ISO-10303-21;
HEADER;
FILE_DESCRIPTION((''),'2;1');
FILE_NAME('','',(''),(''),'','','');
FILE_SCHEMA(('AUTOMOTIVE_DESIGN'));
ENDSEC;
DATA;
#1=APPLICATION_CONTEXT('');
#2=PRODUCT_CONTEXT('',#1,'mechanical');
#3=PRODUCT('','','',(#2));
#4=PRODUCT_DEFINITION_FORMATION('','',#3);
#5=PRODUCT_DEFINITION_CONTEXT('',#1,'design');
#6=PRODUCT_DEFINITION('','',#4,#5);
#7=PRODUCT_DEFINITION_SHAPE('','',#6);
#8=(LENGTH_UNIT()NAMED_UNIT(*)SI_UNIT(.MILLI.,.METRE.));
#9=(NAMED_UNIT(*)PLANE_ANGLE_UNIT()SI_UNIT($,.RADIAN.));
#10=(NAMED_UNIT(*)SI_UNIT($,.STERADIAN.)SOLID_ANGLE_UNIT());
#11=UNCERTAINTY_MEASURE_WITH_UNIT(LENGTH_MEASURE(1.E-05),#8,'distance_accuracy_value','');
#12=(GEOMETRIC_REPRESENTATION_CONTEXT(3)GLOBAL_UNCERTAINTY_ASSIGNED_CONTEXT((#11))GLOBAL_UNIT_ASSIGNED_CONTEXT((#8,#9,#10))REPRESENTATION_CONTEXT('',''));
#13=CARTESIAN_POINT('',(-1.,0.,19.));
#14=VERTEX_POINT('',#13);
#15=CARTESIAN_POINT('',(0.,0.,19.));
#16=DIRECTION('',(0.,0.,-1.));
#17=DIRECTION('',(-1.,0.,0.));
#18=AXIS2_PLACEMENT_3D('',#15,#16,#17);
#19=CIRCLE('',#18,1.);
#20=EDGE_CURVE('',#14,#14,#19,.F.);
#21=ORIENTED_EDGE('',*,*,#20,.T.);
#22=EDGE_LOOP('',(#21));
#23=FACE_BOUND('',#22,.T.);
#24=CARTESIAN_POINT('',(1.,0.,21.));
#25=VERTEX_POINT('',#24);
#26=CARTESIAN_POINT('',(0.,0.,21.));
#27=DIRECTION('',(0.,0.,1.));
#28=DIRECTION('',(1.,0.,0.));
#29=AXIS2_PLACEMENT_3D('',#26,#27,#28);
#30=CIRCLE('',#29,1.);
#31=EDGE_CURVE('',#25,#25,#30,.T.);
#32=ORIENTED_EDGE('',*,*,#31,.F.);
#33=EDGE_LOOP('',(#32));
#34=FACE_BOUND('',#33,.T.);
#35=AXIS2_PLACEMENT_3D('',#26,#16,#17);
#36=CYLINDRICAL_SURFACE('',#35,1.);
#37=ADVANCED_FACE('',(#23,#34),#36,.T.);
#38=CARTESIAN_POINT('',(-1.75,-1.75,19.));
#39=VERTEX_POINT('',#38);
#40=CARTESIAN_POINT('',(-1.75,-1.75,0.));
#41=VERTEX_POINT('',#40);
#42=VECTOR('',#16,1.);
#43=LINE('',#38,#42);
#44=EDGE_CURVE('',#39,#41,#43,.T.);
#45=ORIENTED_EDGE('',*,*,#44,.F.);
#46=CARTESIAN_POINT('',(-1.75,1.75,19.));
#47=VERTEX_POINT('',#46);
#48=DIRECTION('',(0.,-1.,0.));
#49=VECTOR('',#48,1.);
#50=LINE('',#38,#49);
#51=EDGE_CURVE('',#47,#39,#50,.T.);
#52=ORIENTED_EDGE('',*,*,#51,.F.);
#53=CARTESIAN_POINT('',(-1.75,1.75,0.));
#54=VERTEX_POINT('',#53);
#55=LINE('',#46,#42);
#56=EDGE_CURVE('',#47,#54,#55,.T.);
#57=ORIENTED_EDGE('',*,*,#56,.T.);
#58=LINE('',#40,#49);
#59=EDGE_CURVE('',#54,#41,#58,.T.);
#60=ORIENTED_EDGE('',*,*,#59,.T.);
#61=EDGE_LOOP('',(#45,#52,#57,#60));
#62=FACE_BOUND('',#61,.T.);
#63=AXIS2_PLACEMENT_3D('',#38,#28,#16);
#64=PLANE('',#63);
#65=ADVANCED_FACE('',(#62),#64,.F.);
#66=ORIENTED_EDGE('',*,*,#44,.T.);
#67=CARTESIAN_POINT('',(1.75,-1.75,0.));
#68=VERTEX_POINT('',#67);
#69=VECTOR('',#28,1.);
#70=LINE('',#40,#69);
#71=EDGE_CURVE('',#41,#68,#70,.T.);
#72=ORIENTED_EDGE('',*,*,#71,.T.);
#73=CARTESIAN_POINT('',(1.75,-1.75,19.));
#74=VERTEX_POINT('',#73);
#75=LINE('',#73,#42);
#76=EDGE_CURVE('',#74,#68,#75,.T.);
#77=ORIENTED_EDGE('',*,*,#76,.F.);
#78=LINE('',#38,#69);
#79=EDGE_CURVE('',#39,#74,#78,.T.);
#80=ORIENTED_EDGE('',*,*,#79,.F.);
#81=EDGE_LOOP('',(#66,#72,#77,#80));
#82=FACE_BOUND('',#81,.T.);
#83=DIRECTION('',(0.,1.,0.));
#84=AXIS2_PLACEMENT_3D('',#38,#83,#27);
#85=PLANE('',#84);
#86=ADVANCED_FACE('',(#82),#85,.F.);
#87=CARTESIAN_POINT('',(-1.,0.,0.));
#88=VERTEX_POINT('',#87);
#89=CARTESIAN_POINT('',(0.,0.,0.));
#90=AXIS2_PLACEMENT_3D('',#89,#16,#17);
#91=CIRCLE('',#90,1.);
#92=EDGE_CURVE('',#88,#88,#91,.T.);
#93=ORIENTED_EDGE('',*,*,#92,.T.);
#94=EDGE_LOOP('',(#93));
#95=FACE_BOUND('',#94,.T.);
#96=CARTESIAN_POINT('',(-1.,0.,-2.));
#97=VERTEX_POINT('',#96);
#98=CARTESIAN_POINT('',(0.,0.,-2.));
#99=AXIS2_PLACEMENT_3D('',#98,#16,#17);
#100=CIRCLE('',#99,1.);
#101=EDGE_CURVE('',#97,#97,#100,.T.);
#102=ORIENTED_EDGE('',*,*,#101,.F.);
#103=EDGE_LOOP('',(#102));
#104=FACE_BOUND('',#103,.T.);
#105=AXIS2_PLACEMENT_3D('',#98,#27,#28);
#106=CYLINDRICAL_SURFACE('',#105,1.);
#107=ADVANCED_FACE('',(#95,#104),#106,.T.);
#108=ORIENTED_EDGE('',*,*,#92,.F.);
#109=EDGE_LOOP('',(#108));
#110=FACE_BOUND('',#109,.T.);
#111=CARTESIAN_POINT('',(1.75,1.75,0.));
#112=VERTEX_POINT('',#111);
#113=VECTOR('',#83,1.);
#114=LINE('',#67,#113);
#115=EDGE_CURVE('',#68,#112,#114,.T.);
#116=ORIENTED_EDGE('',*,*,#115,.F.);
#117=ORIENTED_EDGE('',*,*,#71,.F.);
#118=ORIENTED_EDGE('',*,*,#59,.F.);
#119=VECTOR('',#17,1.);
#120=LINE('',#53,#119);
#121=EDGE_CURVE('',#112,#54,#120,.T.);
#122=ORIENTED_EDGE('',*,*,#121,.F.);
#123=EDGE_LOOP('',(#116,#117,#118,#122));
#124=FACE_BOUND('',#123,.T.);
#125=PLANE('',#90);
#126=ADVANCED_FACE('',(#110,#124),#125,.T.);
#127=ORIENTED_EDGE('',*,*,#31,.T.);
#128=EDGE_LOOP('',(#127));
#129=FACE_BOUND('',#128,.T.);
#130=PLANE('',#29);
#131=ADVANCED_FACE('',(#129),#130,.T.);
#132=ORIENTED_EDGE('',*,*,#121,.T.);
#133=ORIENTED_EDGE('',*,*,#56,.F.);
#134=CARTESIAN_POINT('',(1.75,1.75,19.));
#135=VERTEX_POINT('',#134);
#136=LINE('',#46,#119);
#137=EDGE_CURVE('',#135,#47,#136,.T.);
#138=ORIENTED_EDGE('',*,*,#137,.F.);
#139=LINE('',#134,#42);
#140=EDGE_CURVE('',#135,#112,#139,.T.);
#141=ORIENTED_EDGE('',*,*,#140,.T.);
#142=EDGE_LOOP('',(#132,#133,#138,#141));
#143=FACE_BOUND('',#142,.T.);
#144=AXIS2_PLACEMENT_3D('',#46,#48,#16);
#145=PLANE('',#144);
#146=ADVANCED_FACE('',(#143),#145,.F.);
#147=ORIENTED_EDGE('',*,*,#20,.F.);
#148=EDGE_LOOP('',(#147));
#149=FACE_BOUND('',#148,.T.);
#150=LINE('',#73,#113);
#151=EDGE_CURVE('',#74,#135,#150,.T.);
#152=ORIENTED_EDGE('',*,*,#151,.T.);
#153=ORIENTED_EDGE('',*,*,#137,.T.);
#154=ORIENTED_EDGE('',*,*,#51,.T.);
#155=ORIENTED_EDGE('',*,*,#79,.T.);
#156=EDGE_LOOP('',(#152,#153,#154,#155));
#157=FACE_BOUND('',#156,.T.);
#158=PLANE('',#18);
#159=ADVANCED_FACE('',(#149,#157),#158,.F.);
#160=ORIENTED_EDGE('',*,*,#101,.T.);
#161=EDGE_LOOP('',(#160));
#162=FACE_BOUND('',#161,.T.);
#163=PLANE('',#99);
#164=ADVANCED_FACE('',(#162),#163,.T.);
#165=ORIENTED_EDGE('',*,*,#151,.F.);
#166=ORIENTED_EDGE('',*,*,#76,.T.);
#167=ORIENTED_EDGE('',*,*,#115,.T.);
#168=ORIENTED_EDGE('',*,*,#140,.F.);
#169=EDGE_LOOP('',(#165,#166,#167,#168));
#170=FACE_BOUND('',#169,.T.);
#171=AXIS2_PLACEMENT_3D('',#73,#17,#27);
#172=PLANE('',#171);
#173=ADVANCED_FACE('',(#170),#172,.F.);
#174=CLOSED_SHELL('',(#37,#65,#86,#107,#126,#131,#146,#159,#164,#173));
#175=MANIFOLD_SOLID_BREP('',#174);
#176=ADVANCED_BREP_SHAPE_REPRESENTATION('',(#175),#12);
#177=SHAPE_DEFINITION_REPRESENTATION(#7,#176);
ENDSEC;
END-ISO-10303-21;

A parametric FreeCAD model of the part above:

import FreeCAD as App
import Part
import Sketcher
Q = App.Units.Quantity

doc = App.newDocument("Part")
body = doc.addObject("PartDesign::Body", "Body")

sketch1 = body.newObject("Sketcher::SketchObject", "Sketch")
sketch1.AttachmentSupport = (doc.getObject("XY_Plane"), [""])
sketch1.MapMode = "FlatFace"
sketch1.addGeometry([
    Part.LineSegment(App.Vector(-1.8, 1.8, 0), App.Vector(-1.8, -1.8, 0)),
    Part.LineSegment(App.Vector(-1.8, -1.8, 0), App.Vector(1.8, -1.8, 0)),
    Part.LineSegment(App.Vector(1.8, -1.8, 0), App.Vector(1.8, 1.8, 0)),
    Part.LineSegment(App.Vector(1.8, 1.8, 0), App.Vector(-1.8, 1.8, 0)),
], False)
sketch1.addConstraint([
    Sketcher.Constraint("Coincident", 0, 2, 1, 1),
    Sketcher.Constraint("Coincident", 1, 2, 2, 1),
    Sketcher.Constraint("Coincident", 2, 2, 3, 1),
    Sketcher.Constraint("Coincident", 3, 2, 0, 1),
    Sketcher.Constraint("Vertical", 0),
    Sketcher.Constraint("Horizontal", 1),
    Sketcher.Constraint("Vertical", 2),
    Sketcher.Constraint("Horizontal", 3),
    Sketcher.Constraint("Symmetric", 0, 2, 2, 2, -1, 1),
    Sketcher.Constraint("Equal", 3, 0),
    Sketcher.Constraint("DistanceX", 1, 1, 1, 2, Q("3.5 mm")),
])
pad1 = body.newObject("PartDesign::Pad", "Pad")
pad1.Profile = sketch1
pad1.Length = 19

sketch2 = body.newObject("Sketcher::SketchObject", "Sketch001")
sketch2.AttachmentSupport = (doc.getObject("XY_Plane"), [""])
sketch2.MapMode = "FlatFace"
sketch2.AttachmentOffset = App.Placement(App.Vector(0, 0, 19), App.Rotation())
sketch2.addGeometry(Part.Circle(App.Vector(0, 0, 0), App.Vector(0, 0, 1), 1), False)
sketch2.addConstraint([
    Sketcher.Constraint("Coincident", 0, 3, -1, 1),
    Sketcher.Constraint("Diameter", 0, Q("2 mm")),
])
pad2 = body.newObject("PartDesign::Pad", "Pad001")
pad2.Profile = sketch2
pad2.Length = 2

sketch3 = body.newObject("Sketcher::SketchObject", "Sketch002")
sketch3.AttachmentSupport = (doc.getObject("XY_Plane"), [""])
sketch3.MapMode = "FlatFace"
sketch3.AttachmentOffset = App.Placement(App.Vector(0, 0, -2), App.Rotation())
sketch3.addGeometry(Part.Circle(App.Vector(0, 0, 0), App.Vector(0, 0, 1), 1), False)
sketch3.addConstraint([
    Sketcher.Constraint("Coincident", 0, 3, -1, 1),
    Sketcher.Constraint("Diameter", 0, Q("2 mm")),
])
pad3 = body.newObject("PartDesign::Pad", "Pad002")
pad3.Profile = sketch3
pad3.Length = 2

doc.recompute()
